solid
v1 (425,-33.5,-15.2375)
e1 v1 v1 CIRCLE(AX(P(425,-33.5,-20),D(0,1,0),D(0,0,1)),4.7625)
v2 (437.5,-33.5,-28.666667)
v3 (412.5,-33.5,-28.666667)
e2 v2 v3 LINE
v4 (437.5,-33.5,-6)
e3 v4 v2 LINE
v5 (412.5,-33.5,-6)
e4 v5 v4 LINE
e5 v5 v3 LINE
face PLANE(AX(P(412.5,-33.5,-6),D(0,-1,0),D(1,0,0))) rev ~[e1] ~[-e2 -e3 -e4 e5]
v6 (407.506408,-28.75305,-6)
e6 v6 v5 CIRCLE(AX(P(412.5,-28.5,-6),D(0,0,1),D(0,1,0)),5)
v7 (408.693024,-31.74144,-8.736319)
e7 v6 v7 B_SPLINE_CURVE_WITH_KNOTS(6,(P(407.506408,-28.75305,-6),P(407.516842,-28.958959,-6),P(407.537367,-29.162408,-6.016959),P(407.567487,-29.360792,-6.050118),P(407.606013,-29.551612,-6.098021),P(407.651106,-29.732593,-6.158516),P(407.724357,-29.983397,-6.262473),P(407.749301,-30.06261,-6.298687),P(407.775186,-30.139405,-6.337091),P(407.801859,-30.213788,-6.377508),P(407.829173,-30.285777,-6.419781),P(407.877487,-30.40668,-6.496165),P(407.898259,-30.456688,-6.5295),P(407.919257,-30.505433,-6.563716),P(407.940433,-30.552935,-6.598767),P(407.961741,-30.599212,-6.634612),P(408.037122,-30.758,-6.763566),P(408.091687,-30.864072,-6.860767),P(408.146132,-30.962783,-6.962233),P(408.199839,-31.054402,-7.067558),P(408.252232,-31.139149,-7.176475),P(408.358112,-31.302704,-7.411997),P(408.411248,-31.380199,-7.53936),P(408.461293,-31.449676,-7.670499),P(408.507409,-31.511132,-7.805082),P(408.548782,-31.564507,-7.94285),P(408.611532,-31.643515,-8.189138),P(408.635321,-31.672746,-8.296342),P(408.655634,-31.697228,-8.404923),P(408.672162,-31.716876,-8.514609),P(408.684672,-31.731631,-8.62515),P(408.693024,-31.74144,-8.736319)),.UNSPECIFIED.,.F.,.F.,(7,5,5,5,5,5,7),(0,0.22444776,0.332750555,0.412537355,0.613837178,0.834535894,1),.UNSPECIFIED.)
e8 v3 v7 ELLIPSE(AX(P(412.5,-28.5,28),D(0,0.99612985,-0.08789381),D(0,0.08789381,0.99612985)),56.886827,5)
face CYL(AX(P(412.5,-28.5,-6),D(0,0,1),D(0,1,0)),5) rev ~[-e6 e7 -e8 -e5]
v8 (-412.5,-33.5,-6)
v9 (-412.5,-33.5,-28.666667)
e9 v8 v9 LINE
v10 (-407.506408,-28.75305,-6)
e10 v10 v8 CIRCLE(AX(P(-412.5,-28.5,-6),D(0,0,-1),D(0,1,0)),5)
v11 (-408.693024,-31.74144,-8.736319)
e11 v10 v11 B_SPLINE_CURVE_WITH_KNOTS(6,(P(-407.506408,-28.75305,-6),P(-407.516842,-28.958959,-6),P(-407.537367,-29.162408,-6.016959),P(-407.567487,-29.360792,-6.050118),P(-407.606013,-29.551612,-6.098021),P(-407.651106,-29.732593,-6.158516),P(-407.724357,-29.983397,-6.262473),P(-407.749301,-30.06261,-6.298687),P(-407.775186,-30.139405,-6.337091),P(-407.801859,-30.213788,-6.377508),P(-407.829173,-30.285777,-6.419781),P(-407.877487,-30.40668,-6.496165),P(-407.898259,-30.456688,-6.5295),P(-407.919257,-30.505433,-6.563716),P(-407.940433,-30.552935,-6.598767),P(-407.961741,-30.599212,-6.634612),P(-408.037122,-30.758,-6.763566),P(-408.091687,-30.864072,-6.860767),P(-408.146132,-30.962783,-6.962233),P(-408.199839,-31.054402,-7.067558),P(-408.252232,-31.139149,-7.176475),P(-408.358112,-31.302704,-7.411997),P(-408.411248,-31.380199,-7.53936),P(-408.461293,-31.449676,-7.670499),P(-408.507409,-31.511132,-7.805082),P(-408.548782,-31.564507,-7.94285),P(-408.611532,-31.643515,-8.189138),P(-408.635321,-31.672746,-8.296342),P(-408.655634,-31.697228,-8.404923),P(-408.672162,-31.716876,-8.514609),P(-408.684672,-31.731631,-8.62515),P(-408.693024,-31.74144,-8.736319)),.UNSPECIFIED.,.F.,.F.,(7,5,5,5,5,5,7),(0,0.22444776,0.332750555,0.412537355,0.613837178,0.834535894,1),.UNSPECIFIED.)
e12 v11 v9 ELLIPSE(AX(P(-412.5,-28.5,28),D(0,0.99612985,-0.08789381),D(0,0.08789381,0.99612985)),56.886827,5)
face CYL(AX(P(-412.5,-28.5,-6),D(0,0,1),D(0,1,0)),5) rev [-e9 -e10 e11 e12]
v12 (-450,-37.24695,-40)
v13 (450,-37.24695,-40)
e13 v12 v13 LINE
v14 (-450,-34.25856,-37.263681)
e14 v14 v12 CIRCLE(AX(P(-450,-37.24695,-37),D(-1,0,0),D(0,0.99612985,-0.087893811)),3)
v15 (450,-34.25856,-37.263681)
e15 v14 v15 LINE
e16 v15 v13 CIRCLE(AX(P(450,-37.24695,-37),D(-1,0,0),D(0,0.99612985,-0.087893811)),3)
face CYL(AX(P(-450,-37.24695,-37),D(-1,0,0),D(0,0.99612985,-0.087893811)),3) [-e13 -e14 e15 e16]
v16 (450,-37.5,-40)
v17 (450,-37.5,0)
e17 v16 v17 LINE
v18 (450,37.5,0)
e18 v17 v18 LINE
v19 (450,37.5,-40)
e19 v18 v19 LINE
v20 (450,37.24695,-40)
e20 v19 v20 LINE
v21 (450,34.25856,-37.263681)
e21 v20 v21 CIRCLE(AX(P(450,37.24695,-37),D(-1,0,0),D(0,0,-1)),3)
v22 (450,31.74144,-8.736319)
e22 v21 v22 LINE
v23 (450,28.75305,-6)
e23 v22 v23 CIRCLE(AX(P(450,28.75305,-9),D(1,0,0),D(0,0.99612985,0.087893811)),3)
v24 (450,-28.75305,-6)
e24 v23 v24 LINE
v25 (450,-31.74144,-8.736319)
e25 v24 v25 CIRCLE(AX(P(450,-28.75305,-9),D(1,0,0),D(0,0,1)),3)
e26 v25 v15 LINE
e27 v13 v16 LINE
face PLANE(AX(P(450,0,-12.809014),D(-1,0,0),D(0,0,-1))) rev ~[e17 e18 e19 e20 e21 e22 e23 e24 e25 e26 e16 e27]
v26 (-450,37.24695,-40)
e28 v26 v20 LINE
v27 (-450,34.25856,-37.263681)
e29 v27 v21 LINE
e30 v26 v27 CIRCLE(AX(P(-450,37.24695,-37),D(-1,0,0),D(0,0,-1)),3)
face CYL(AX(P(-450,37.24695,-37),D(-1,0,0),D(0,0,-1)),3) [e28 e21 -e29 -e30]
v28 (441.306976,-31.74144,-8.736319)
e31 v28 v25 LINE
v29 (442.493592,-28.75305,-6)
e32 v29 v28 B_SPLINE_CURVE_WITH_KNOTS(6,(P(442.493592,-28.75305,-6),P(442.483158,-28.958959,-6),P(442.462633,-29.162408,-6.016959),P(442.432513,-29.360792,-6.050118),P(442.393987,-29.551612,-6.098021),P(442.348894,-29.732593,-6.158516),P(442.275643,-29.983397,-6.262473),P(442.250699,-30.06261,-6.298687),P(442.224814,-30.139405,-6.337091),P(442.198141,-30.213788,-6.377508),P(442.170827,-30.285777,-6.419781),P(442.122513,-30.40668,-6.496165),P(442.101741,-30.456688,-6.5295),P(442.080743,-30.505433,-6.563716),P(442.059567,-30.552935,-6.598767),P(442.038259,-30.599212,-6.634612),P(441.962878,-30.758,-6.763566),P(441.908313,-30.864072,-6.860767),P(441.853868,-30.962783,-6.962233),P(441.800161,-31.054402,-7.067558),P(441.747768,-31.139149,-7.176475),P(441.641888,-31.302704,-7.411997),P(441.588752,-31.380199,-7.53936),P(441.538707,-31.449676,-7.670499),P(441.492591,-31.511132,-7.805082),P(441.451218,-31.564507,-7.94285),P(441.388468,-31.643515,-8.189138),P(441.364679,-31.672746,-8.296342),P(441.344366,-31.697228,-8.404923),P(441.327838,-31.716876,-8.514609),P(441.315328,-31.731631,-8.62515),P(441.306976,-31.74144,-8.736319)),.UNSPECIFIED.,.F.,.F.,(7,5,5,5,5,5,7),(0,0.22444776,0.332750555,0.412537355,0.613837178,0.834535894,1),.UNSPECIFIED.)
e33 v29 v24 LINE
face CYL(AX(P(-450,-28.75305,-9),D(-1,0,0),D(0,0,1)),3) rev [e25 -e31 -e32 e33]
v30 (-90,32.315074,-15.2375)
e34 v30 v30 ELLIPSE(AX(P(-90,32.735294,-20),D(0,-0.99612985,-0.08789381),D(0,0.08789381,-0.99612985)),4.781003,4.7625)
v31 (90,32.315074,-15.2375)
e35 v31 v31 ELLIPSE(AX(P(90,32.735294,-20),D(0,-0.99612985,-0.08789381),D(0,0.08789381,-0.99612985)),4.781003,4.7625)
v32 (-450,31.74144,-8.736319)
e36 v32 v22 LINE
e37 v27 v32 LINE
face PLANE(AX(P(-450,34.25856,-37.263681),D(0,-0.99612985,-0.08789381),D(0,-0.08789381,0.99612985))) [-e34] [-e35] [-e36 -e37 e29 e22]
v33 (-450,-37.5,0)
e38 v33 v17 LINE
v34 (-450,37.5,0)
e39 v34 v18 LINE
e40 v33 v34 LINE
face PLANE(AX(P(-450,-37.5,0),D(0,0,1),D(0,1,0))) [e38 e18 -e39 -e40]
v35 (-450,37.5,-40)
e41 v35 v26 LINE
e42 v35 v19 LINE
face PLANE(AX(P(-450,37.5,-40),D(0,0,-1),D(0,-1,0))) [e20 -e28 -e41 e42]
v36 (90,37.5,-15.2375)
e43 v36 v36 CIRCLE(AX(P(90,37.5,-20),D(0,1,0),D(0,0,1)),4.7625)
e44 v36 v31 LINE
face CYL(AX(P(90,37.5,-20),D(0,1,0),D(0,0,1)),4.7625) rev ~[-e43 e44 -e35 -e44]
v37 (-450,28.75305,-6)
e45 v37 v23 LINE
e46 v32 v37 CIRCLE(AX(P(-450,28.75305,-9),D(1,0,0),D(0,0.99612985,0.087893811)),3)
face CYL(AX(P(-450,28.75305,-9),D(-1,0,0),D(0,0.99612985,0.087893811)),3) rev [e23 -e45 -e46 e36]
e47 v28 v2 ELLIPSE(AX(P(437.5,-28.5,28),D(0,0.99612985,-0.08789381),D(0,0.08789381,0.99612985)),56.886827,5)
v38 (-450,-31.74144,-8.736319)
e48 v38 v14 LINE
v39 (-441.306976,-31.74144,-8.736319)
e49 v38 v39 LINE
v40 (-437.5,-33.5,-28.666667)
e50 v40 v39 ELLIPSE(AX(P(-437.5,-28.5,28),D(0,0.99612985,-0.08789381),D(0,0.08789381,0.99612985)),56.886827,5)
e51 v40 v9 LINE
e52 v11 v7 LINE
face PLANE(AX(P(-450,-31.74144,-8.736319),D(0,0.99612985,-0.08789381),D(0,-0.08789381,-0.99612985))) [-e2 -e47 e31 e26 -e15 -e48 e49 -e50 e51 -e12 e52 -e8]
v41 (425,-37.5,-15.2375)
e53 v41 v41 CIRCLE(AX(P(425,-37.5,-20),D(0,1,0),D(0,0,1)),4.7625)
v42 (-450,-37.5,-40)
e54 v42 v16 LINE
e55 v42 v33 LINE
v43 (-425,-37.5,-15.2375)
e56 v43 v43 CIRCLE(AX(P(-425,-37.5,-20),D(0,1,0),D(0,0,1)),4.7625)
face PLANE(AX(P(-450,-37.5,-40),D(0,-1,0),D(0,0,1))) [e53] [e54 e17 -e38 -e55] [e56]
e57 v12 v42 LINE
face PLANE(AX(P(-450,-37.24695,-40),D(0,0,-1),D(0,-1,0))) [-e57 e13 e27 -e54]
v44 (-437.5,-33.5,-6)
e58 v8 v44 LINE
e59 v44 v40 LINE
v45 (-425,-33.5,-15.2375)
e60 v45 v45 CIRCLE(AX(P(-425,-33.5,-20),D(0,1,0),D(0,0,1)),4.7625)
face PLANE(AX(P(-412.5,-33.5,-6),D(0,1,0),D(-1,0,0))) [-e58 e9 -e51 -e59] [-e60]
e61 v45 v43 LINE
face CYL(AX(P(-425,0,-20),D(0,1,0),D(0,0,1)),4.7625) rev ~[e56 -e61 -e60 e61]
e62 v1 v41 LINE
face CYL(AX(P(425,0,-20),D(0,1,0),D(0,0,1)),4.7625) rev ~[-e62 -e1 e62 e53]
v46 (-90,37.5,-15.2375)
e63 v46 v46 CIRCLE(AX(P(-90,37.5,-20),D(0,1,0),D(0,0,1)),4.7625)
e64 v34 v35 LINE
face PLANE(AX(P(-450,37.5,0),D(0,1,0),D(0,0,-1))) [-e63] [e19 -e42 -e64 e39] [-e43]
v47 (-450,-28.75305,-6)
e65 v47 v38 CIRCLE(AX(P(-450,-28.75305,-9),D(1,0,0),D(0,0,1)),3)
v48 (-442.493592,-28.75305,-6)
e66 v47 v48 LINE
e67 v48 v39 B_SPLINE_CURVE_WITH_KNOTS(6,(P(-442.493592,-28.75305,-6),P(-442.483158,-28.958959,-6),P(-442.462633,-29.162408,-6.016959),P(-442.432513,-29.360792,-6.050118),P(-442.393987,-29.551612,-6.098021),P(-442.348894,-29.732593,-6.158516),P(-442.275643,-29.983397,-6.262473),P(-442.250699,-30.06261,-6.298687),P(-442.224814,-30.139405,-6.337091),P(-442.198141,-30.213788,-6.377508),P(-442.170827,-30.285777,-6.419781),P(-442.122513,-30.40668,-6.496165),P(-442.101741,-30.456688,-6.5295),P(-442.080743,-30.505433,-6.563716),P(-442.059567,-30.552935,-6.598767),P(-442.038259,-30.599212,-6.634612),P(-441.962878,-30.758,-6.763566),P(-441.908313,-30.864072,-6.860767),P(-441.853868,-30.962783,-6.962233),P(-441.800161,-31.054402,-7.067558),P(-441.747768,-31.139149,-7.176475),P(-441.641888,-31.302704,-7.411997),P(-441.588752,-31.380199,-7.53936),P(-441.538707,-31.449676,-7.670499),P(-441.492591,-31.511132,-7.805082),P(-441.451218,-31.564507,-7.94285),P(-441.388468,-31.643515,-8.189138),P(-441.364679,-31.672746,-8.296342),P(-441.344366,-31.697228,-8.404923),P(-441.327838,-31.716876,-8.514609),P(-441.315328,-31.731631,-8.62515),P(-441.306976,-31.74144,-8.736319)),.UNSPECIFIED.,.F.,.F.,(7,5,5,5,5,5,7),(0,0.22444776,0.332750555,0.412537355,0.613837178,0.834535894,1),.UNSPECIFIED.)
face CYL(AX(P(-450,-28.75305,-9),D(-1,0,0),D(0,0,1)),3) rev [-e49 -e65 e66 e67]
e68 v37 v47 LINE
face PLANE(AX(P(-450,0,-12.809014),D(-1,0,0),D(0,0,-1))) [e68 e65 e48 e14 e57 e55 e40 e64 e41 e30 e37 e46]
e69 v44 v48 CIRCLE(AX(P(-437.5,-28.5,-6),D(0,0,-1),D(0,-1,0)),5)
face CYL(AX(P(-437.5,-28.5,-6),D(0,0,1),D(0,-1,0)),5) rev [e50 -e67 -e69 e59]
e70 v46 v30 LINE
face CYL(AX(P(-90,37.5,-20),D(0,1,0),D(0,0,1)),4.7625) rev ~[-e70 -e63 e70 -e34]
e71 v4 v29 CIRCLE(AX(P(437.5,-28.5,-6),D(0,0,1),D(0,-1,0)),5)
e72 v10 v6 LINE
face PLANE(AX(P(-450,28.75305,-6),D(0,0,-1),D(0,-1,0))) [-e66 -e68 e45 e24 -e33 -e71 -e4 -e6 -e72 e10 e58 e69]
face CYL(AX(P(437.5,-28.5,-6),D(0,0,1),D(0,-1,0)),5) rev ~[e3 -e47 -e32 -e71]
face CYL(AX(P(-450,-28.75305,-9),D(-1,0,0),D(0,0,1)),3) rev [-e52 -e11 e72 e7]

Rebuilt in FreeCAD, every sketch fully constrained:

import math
import FreeCAD as App
import Part
import Sketcher
from FreeCAD import Vector
Q = App.Units.Quantity

doc = App.newDocument("Part")
params = doc.addObject("Spreadsheet::Sheet", "Params")
for row, (alias, value) in enumerate([
    ("sketch1_radius", "3 mm"),
    ("sketch1_width", "75 mm"),
    ("sketch1_height", "40 mm"),
    ("pad1_length", "900 mm"),
    ("sketch3_radius", "5 mm"),
    ("sketch3_width", "25 mm"),
    ("pocket2_length", "40 mm"),
    ("pocket3_length", "10 mm"),
], start=1):
    params.set(f"A{row}", alias)
    params.set(f"B{row}", "=" + value)
    params.setAlias(f"B{row}", alias)

body = doc.addObject("PartDesign::Body", "Body")

# Sketch on YZ plane
sketch1 = body.newObject("Sketcher::SketchObject", "Sketch")
sketch1.AttachmentSupport = (doc.getObject("YZ_Plane"), [""])
sketch1.MapMode = "FlatFace"
sketch1.AttachmentOffset = App.Placement(Vector(0, 0, -450), App.Rotation())
sketch1.addGeometry([
    Part.LineSegment(Vector(37.5, 0, 0), Vector(-37.5, 0, 0)),  # 0
    Part.LineSegment(Vector(-37.5, 0, 0), Vector(-37.5, -40, 0)),  # 1
    Part.LineSegment(Vector(-37.5, -40, 0), Vector(-37.25, -40, 0)),  # 2
    Part.ArcOfCircle(Part.Circle(Vector(-37.25, -37, 0), Vector(0, 0, 1), 3), math.radians(-90), math.radians(-5)),  # 3
    Part.LineSegment(Vector(-34.26, -37.26, 0), Vector(-31.74, -8.74, 0)),  # 4
    Part.ArcOfCircle(Part.Circle(Vector(-28.75, -9, 0), Vector(0, 0, 1), 3), math.radians(90), math.radians(175)),  # 5
    Part.LineSegment(Vector(-28.75, -6, 0), Vector(28.75, -6, 0)),  # 6
    Part.ArcOfCircle(Part.Circle(Vector(28.75, -9, 0), Vector(0, 0, 1), 3), math.radians(5), math.radians(90)),  # 7
    Part.LineSegment(Vector(31.74, -8.74, 0), Vector(34.26, -37.26, 0)),  # 8
    Part.ArcOfCircle(Part.Circle(Vector(37.25, -37, 0), Vector(0, 0, 1), 3), math.radians(-175), math.radians(-90)),  # 9
    Part.LineSegment(Vector(37.25, -40, 0), Vector(37.5, -40, 0)),  # 10
    Part.LineSegment(Vector(37.5, -40, 0), Vector(37.5, 0, 0)),  # 11
], False)
sketch1.addConstraint([
    Sketcher.Constraint("Coincident", 0, 2, 1, 1),
    Sketcher.Constraint("Coincident", 1, 2, 2, 1),
    Sketcher.Constraint("Tangent", 2, 2, 3, 1),
    Sketcher.Constraint("Tangent", 3, 2, 4, 1),
    Sketcher.Constraint("Tangent", 4, 2, 5, 2),
    Sketcher.Constraint("Tangent", 5, 1, 6, 1),
    Sketcher.Constraint("Tangent", 6, 2, 7, 2),
    Sketcher.Constraint("Tangent", 7, 1, 8, 1),
    Sketcher.Constraint("Tangent", 8, 2, 9, 1),
    Sketcher.Constraint("Tangent", 9, 2, 10, 1),
    Sketcher.Constraint("Coincident", 10, 2, 11, 1),
    Sketcher.Constraint("Coincident", 11, 2, 0, 1),
    Sketcher.Constraint("Horizontal", 0),
    Sketcher.Constraint("Vertical", 1),
    Sketcher.Constraint("Horizontal", 2),
    Sketcher.Constraint("Horizontal", 6),
    Sketcher.Constraint("Horizontal", 10),
    Sketcher.Constraint("Vertical", 11),
    Sketcher.Constraint("Equal", 3, 5),
    Sketcher.Constraint("Equal", 5, 7),
    Sketcher.Constraint("Equal", 7, 9),
    Sketcher.Constraint("Symmetric", 0, 2, 11, 2, -1, 1),
    Sketcher.Constraint("Symmetric", 3, 3, 9, 3, -2),
    Sketcher.Constraint("Horizontal", 4, 2, 7, 1),
    Sketcher.Constraint("Radius", 3, Q("3 mm")),
    Sketcher.Constraint("DistanceX", 0, 2, 0, 1, Q("75 mm")),
    Sketcher.Constraint("DistanceY", 1, 2, 1, 1, Q("40 mm")),
    Sketcher.Constraint("DistanceY", 5, 3, -1, 1, Q("9 mm")),
    Sketcher.Constraint("DistanceX", 3, 3, 7, 3, Q("66 mm")),
    Sketcher.Constraint("DistanceX", 6, 1, 6, 2, Q("57.506101 mm")),
])
sketch1.setExpression("Constraints[24]", "Params.sketch1_radius")
sketch1.setExpression("Constraints[25]", "Params.sketch1_width")
sketch1.setExpression("Constraints[26]", "Params.sketch1_height")
pad1 = body.newObject("PartDesign::Pad", "Pad")
pad1.Profile = sketch1
pad1.setExpression("Length", "Params.pad1_length")

# Sketch on XZ plane
sketch2 = body.newObject("Sketcher::SketchObject", "Sketch001")
sketch2.AttachmentSupport = (doc.getObject("XZ_Plane"), [""])
sketch2.MapMode = "FlatFace"
sketch2.addGeometry([
    Part.Circle(Vector(-425, -20, 0), Vector(0, 0, 1), 4.8),
    Part.Circle(Vector(425, -20, 0), Vector(0, 0, 1), 4.8),
], False)
sketch2.addConstraint([
    Sketcher.Constraint("Equal", 0, 1),
    Sketcher.Constraint("Symmetric", 0, 3, 1, 3, -2),
    Sketcher.Constraint("Diameter", 0, Q("9.525 mm")),
    Sketcher.Constraint("DistanceX", 0, 3, -1, 1, Q("425 mm")),
    Sketcher.Constraint("DistanceY", 0, 3, -1, 1, Q("20 mm")),
])
pocket1 = body.newObject("PartDesign::Pocket", "Pocket")
pocket1.Profile = sketch2
pocket1.Type = "ThroughAll"
pocket1.Reversed = True

# Sketch on XY plane
sketch3 = body.newObject("Sketcher::SketchObject", "Sketch002")
sketch3.AttachmentSupport = (doc.getObject("XY_Plane"), [""])
sketch3.MapMode = "FlatFace"
sketch3.AttachmentOffset = App.Placement(Vector(0, 0, -6), App.Rotation())
sketch3.addGeometry([
    Part.LineSegment(Vector(438, -34, 0), Vector(412, -34, 0)),  # 0
    Part.ArcOfCircle(Part.Circle(Vector(412, -28, 0), Vector(0, 0, 1), 5), math.radians(90), math.radians(270)),  # 1
    Part.LineSegment(Vector(412, -24, 0), Vector(438, -24, 0)),  # 2
    Part.ArcOfCircle(Part.Circle(Vector(438, -28, 0), Vector(0, 0, 1), 5), math.radians(-90), math.radians(90)),  # 3
    Part.LineSegment(Vector(-412, -34, 0), Vector(-438, -34, 0)),  # 4
    Part.ArcOfCircle(Part.Circle(Vector(-438, -28, 0), Vector(0, 0, 1), 5), math.radians(90), math.radians(270)),  # 5
    Part.LineSegment(Vector(-438, -24, 0), Vector(-412, -24, 0)),  # 6
    Part.ArcOfCircle(Part.Circle(Vector(-412, -28, 0), Vector(0, 0, 1), 5), math.radians(-90), math.radians(90)),  # 7
], False)
sketch3.addConstraint([
    Sketcher.Constraint("Tangent", 0, 2, 1, 2),
    Sketcher.Constraint("Tangent", 1, 1, 2, 1),
    Sketcher.Constraint("Tangent", 2, 2, 3, 2),
    Sketcher.Constraint("Tangent", 3, 1, 0, 1),
    Sketcher.Constraint("Tangent", 4, 2, 5, 2),
    Sketcher.Constraint("Tangent", 5, 1, 6, 1),
    Sketcher.Constraint("Tangent", 6, 2, 7, 2),
    Sketcher.Constraint("Tangent", 7, 1, 4, 1),
    Sketcher.Constraint("Horizontal", 0),
    Sketcher.Constraint("Horizontal", 2),
    Sketcher.Constraint("Horizontal", 4),
    Sketcher.Constraint("Horizontal", 6),
    Sketcher.Constraint("Equal", 3, 5),
    Sketcher.Constraint("Symmetric", 3, 3, 5, 3, -2),
    Sketcher.Constraint("Equal", 2, 4),
    Sketcher.Constraint("Radius", 1, Q("5 mm")),
    Sketcher.Constraint("DistanceX", 0, 2, 0, 1, Q("25 mm")),
    Sketcher.Constraint("DistanceX", 5, 3, 1, 3, Q("850 mm")),
    Sketcher.Constraint("DistanceY", 1, 3, -1, 1, Q("28.5 mm")),
])
sketch3.setExpression("Constraints[15]", "Params.sketch3_radius")
sketch3.setExpression("Constraints[16]", "Params.sketch3_width")
pocket2 = body.newObject("PartDesign::Pocket", "Pocket001")
pocket2.Profile = sketch3
pocket2.setExpression("Length", "Params.pocket2_length")

# Sketch on XZ plane
sketch4 = body.newObject("Sketcher::SketchObject", "Sketch003")
sketch4.AttachmentSupport = (doc.getObject("XZ_Plane"), [""])
sketch4.MapMode = "FlatFace"
sketch4.AttachmentOffset = App.Placement(Vector(0, 0, -37.5), App.Rotation())
sketch4.addGeometry([
    Part.Circle(Vector(90, -20, 0), Vector(0, 0, 1), 4.8),
    Part.Circle(Vector(-90, -20, 0), Vector(0, 0, 1), 4.8),
], False)
sketch4.addConstraint([
    Sketcher.Constraint("Equal", 0, 1),
    Sketcher.Constraint("Symmetric", 0, 3, 1, 3, -2),
    Sketcher.Constraint("Diameter", 0, Q("9.525 mm")),
    Sketcher.Constraint("DistanceX", -1, 1, 0, 3, Q("90 mm")),
    Sketcher.Constraint("DistanceY", 0, 3, -1, 1, Q("20 mm")),
])
pocket3 = body.newObject("PartDesign::Pocket", "Pocket002")
pocket3.Profile = sketch4
pocket3.setExpression("Length", "Params.pocket3_length")
pocket3.Reversed = True

doc.recompute()
